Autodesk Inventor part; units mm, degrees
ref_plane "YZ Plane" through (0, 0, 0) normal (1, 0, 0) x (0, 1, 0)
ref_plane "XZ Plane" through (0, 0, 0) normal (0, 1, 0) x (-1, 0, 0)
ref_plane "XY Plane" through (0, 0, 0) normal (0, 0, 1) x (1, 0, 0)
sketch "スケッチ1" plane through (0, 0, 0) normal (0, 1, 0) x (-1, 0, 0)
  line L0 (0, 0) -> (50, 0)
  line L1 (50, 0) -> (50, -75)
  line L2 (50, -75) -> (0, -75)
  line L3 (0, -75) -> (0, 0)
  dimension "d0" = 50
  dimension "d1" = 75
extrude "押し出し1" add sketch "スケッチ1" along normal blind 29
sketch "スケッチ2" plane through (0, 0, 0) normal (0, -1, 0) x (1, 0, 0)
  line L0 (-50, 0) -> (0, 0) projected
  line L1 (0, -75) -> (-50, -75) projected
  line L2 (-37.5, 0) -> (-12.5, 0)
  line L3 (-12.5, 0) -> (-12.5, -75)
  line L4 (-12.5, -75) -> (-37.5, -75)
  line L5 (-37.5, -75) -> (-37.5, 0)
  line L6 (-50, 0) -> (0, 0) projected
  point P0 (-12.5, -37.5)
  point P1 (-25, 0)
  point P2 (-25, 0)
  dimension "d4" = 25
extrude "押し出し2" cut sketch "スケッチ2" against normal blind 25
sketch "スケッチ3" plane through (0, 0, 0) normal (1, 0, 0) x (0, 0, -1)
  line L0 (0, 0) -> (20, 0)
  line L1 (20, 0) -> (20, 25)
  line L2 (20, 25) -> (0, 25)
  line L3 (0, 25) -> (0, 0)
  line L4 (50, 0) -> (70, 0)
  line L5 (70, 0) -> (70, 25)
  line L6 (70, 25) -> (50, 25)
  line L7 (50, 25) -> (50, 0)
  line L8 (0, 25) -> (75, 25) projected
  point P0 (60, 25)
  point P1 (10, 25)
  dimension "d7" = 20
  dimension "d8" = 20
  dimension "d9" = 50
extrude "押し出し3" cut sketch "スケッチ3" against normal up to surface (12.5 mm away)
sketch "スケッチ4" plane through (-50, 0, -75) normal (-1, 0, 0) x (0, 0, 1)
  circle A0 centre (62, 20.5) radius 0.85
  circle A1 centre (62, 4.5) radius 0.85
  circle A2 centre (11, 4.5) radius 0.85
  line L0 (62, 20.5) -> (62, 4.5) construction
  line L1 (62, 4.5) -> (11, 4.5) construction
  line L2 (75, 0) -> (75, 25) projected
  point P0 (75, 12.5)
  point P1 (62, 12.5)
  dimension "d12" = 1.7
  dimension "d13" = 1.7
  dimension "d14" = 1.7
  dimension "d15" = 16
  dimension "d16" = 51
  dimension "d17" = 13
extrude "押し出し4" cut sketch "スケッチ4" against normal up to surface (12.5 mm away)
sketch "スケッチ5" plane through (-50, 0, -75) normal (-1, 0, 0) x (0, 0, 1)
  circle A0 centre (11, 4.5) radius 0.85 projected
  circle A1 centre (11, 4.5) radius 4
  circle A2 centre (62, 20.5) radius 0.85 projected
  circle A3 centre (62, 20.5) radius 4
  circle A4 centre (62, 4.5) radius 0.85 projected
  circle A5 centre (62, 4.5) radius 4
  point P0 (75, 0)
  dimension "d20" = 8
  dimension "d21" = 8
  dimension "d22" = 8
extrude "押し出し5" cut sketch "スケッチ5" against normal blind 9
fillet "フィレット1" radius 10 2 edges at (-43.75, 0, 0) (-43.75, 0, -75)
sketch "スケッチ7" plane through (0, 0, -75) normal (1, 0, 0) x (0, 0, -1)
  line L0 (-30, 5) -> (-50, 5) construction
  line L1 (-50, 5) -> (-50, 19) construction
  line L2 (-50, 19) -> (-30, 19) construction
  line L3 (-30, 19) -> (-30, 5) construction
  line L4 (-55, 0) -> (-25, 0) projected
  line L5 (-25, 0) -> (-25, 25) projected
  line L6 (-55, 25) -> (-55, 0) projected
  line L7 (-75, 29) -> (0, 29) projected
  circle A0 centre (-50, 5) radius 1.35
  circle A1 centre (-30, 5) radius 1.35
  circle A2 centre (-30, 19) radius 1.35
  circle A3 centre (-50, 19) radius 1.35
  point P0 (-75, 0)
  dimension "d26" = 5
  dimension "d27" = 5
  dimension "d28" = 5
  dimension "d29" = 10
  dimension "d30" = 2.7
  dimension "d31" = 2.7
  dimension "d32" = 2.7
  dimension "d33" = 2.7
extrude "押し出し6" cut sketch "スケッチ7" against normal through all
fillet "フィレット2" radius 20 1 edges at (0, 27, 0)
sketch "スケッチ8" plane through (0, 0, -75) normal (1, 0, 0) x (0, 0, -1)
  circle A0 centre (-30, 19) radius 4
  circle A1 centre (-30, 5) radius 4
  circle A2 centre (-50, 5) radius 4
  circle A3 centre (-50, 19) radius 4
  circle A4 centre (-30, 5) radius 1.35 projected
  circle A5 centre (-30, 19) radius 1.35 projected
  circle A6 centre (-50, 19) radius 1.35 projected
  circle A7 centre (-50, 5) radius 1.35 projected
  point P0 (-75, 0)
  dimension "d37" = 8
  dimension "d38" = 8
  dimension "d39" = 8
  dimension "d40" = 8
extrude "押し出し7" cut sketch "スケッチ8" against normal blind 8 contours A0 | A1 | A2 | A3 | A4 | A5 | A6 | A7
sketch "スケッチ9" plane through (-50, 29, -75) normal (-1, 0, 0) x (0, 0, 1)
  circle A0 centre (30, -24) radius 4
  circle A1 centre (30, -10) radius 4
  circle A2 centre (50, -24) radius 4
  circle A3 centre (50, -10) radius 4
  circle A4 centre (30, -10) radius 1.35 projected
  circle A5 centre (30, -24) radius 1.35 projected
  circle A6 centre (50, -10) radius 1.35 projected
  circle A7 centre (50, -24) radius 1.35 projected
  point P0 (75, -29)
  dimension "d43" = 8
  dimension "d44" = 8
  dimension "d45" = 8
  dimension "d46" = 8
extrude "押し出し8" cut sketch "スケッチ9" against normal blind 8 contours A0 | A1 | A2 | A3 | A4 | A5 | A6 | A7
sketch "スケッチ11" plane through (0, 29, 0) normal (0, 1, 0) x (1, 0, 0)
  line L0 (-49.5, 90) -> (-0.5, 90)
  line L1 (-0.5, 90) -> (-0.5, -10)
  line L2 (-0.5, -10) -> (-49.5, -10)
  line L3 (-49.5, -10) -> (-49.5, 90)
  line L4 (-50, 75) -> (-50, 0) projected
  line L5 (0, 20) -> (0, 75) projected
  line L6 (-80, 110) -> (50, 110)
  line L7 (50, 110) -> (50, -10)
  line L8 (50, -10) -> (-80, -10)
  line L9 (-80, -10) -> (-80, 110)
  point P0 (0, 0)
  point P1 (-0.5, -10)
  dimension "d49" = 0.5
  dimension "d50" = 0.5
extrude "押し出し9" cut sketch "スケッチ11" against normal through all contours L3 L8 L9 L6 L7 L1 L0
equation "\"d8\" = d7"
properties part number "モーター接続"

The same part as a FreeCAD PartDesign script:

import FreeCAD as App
import Part
import Sketcher

V = App.Vector
Q = App.Units.Quantity


def edges_at(feature, points):
    """Names of the edges that pass closest to the given points."""
    edges = feature.Shape.Edges
    near = lambda p: min(range(len(edges)), key=lambda i: edges[i].distToShape(Part.Vertex(*p))[0])
    return sorted({f"Edge{near(p) + 1}" for p in points})

doc = App.newDocument("Part")
body = doc.addObject("PartDesign::Body", "Body")

sketch1 = body.newObject("Sketcher::SketchObject", "Sketch")
sketch1.AttachmentSupport = (doc.getObject("XZ_Plane"), [""])
sketch1.MapMode = "FlatFace"
sketch1.addGeometry(Part.LineSegment(V(-50, 0, 0), V(0, 0, 0)), False)
sketch1.addGeometry(Part.LineSegment(V(0, 0, 0), V(0, -75, 0)), False)
sketch1.addGeometry(Part.LineSegment(V(0, -75, 0), V(-50, -75, 0)), False)
sketch1.addGeometry(Part.LineSegment(V(-50, -75, 0), V(-50, 0, 0)), False)
sketch1.addConstraint(Sketcher.Constraint("Coincident", 0, 2, 1, 1))
sketch1.addConstraint(Sketcher.Constraint("Coincident", 1, 2, 2, 1))
sketch1.addConstraint(Sketcher.Constraint("Coincident", 2, 2, 3, 1))
sketch1.addConstraint(Sketcher.Constraint("Coincident", 3, 2, 0, 1))
sketch1.addConstraint(Sketcher.Constraint("Horizontal", 0))
sketch1.addConstraint(Sketcher.Constraint("Vertical", 1))
sketch1.addConstraint(Sketcher.Constraint("Horizontal", 2))
sketch1.addConstraint(Sketcher.Constraint("Vertical", 3))
sketch1.addConstraint(Sketcher.Constraint("Coincident", 0, 2, -1, 1))
sketch1.addConstraint(Sketcher.Constraint("DistanceX", 0, 1, 0, 2, Q("50 mm")))
sketch1.addConstraint(Sketcher.Constraint("DistanceY", 1, 2, 1, 1, Q("75 mm")))
pad1 = body.newObject("PartDesign::Pad", "Pad")
pad1.Profile = sketch1
pad1.Length = 29
pad1.Reversed = True

sketch2 = body.newObject("Sketcher::SketchObject", "Sketch001")
sketch2.AttachmentSupport = (doc.getObject("XZ_Plane"), [""])
sketch2.MapMode = "FlatFace"
sketch2.addGeometry(Part.LineSegment(V(-12.5, 0, 0), V(-37.5, 0, 0)), False)
sketch2.addGeometry(Part.LineSegment(V(-37.5, 0, 0), V(-37.5, -75, 0)), False)
sketch2.addGeometry(Part.LineSegment(V(-37.5, -75, 0), V(-12.5, -75, 0)), False)
sketch2.addGeometry(Part.LineSegment(V(-12.5, -75, 0), V(-12.5, 0, 0)), False)
sketch2.addConstraint(Sketcher.Constraint("Coincident", 0, 2, 1, 1))
sketch2.addConstraint(Sketcher.Constraint("Coincident", 1, 2, 2, 1))
sketch2.addConstraint(Sketcher.Constraint("Coincident", 2, 2, 3, 1))
sketch2.addConstraint(Sketcher.Constraint("Coincident", 3, 2, 0, 1))
sketch2.addConstraint(Sketcher.Constraint("Horizontal", 0))
sketch2.addConstraint(Sketcher.Constraint("Vertical", 1))
sketch2.addConstraint(Sketcher.Constraint("Horizontal", 2))
sketch2.addConstraint(Sketcher.Constraint("Vertical", 3))
sketch2.addConstraint(Sketcher.Constraint("PointOnObject", 0, 2, -1))
sketch2.addConstraint(Sketcher.Constraint("DistanceX", 0, 2, 0, 1, Q("25 mm")))
sketch2.addConstraint(Sketcher.Constraint("DistanceY", 1, 2, 1, 1, Q("75 mm")))
sketch2.addConstraint(Sketcher.Constraint("DistanceX", 0, 2, -1, 1, Q("37.5 mm")))
pocket1 = body.newObject("PartDesign::Pocket", "Pocket")
pocket1.Profile = sketch2
pocket1.Length = 25

sketch3 = body.newObject("Sketcher::SketchObject", "Sketch002")
sketch3.AttachmentSupport = (doc.getObject("YZ_Plane"), [""])
sketch3.MapMode = "FlatFace"
sketch3.addGeometry(Part.LineSegment(V(25, 0, 0), V(0, 0, 0)), False)
sketch3.addGeometry(Part.LineSegment(V(0, 0, 0), V(0, -20, 0)), False)
sketch3.addGeometry(Part.LineSegment(V(0, -20, 0), V(25, -20, 0)), False)
sketch3.addGeometry(Part.LineSegment(V(25, -20, 0), V(25, 0, 0)), False)
sketch3.addGeometry(Part.LineSegment(V(25, -70, 0), V(25, -50, 0)), False)
sketch3.addGeometry(Part.LineSegment(V(25, -50, 0), V(0, -50, 0)), False)
sketch3.addGeometry(Part.LineSegment(V(0, -50, 0), V(0, -70, 0)), False)
sketch3.addGeometry(Part.LineSegment(V(0, -70, 0), V(25, -70, 0)), False)
sketch3.addConstraint(Sketcher.Constraint("Coincident", 0, 2, 1, 1))
sketch3.addConstraint(Sketcher.Constraint("Coincident", 1, 2, 2, 1))
sketch3.addConstraint(Sketcher.Constraint("Coincident", 2, 2, 3, 1))
sketch3.addConstraint(Sketcher.Constraint("Coincident", 3, 2, 0, 1))
sketch3.addConstraint(Sketcher.Constraint("Coincident", 4, 2, 5, 1))
sketch3.addConstraint(Sketcher.Constraint("Coincident", 5, 2, 6, 1))
sketch3.addConstraint(Sketcher.Constraint("Coincident", 6, 2, 7, 1))
sketch3.addConstraint(Sketcher.Constraint("Coincident", 7, 2, 4, 1))
sketch3.addConstraint(Sketcher.Constraint("Horizontal", 0))
sketch3.addConstraint(Sketcher.Constraint("Vertical", 1))
sketch3.addConstraint(Sketcher.Constraint("Horizontal", 2))
sketch3.addConstraint(Sketcher.Constraint("Vertical", 3))
sketch3.addConstraint(Sketcher.Constraint("Vertical", 4))
sketch3.addConstraint(Sketcher.Constraint("Horizontal", 5))
sketch3.addConstraint(Sketcher.Constraint("Vertical", 6))
sketch3.addConstraint(Sketcher.Constraint("Horizontal", 7))
sketch3.addConstraint(Sketcher.Constraint("Coincident", 0, 2, -1, 1))
sketch3.addConstraint(Sketcher.Constraint("PointOnObject", 5, 2, -2))
sketch3.addConstraint(Sketcher.Constraint("Vertical", 3, 2, 4, 2))
sketch3.addConstraint(Sketcher.Constraint("Equal", 3, 4))
sketch3.addConstraint(Sketcher.Constraint("DistanceY", 1, 2, 1, 1, Q("20 mm")))
sketch3.addConstraint(Sketcher.Constraint("DistanceY", 4, 2, -1, 1, Q("50 mm")))
sketch3.addConstraint(Sketcher.Constraint("DistanceX", 0, 2, 0, 1, Q("25 mm")))
pocket2 = body.newObject("PartDesign::Pocket", "Pocket001")
pocket2.Profile = sketch3
pocket2.Length = 12.5

sketch4 = body.newObject("Sketcher::SketchObject", "Sketch003")
sketch4.AttachmentSupport = (doc.getObject("YZ_Plane"), [""])
sketch4.MapMode = "FlatFace"
sketch4.AttachmentOffset = App.Placement(V(0, 0, -50), App.Rotation())
sketch4.addGeometry(Part.Circle(V(20.5, -13, 0), V(0, 0, 1), 0.85), False)
sketch4.addGeometry(Part.Circle(V(4.5, -13, 0), V(0, 0, 1), 0.85), False)
sketch4.addGeometry(Part.Circle(V(4.5, -64, 0), V(0, 0, 1), 0.85), False)
sketch4.addConstraint(Sketcher.Constraint("Equal", 0, 1))
sketch4.addConstraint(Sketcher.Constraint("Equal", 1, 2))
sketch4.addConstraint(Sketcher.Constraint("Horizontal", 0, 3, 1, 3))
sketch4.addConstraint(Sketcher.Constraint("Vertical", 1, 3, 2, 3))
sketch4.addConstraint(Sketcher.Constraint("Diameter", 0, Q("1.7 mm")))
sketch4.addConstraint(Sketcher.Constraint("DistanceY", 0, 3, -1, 1, Q("13 mm")))
sketch4.addConstraint(Sketcher.Constraint("DistanceX", 1, 3, 0, 3, Q("16 mm")))
sketch4.addConstraint(Sketcher.Constraint("DistanceY", 2, 3, 1, 3, Q("51 mm")))
sketch4.addConstraint(Sketcher.Constraint("DistanceX", -1, 1, 0, 3, Q("20.5 mm")))
pocket3 = body.newObject("PartDesign::Pocket", "Pocket002")
pocket3.Profile = sketch4
pocket3.Length = 12.5
pocket3.Reversed = True

sketch5 = body.newObject("Sketcher::SketchObject", "Sketch004")
sketch5.AttachmentSupport = (doc.getObject("YZ_Plane"), [""])
sketch5.MapMode = "FlatFace"
sketch5.AttachmentOffset = App.Placement(V(0, 0, -50), App.Rotation())
sketch5.addGeometry(Part.Circle(V(4.5, -64, 0), V(0, 0, 1), 4), False)
sketch5.addGeometry(Part.Circle(V(4.5, -64, 0), V(0, 0, 1), 0.85), False)
sketch5.addGeometry(Part.Circle(V(20.5, -13, 0), V(0, 0, 1), 4), False)
sketch5.addGeometry(Part.Circle(V(20.5, -13, 0), V(0, 0, 1), 0.85), False)
sketch5.addGeometry(Part.Circle(V(4.5, -13, 0), V(0, 0, 1), 4), False)
sketch5.addGeometry(Part.Circle(V(4.5, -13, 0), V(0, 0, 1), 0.85), False)
sketch5.addConstraint(Sketcher.Constraint("Coincident", 1, 3, 0, 3))
sketch5.addConstraint(Sketcher.Constraint("Coincident", 3, 3, 2, 3))
sketch5.addConstraint(Sketcher.Constraint("Coincident", 5, 3, 4, 3))
sketch5.addConstraint(Sketcher.Constraint("Equal", 0, 2))
sketch5.addConstraint(Sketcher.Constraint("Equal", 1, 3))
sketch5.addConstraint(Sketcher.Constraint("Equal", 2, 4))
sketch5.addConstraint(Sketcher.Constraint("Equal", 3, 5))
sketch5.addConstraint(Sketcher.Constraint("Horizontal", 3, 3, 4, 3))
sketch5.addConstraint(Sketcher.Constraint("Vertical", 1, 3, 4, 3))
sketch5.addConstraint(Sketcher.Constraint("Diameter", 0, Q("8 mm")))
sketch5.addConstraint(Sketcher.Constraint("Diameter", 1, Q("1.7 mm")))
sketch5.addConstraint(Sketcher.Constraint("DistanceY", 0, 3, -1, 1, Q("64 mm")))
sketch5.addConstraint(Sketcher.Constraint("DistanceY", 2, 3, -1, 1, Q("13 mm")))
sketch5.addConstraint(Sketcher.Constraint("DistanceX", 0, 3, 2, 3, Q("16 mm")))
sketch5.addConstraint(Sketcher.Constraint("DistanceX", -1, 1, 0, 3, Q("4.5 mm")))
pocket4 = body.newObject("PartDesign::Pocket", "Pocket003")
pocket4.Profile = sketch5
pocket4.Length = 9
pocket4.Reversed = True
doc.recompute()

fillet = body.newObject("PartDesign::Fillet", "Fillet")
fillet.Base = (pocket4, edges_at(pocket4, [(-43.75, 0, 0), (-43.75, 0, -75)]))
fillet.Radius = 10

sketch6 = body.newObject("Sketcher::SketchObject", "Sketch005")
sketch6.AttachmentSupport = (doc.getObject("YZ_Plane"), [""])
sketch6.MapMode = "FlatFace"
sketch6.addGeometry(Part.Circle(V(5, -25, 0), V(0, 0, 1), 1.35), False)
sketch6.addGeometry(Part.Circle(V(5, -45, 0), V(0, 0, 1), 1.35), False)
sketch6.addGeometry(Part.Circle(V(19, -45, 0), V(0, 0, 1), 1.35), False)
sketch6.addGeometry(Part.Circle(V(19, -25, 0), V(0, 0, 1), 1.35), False)
sketch6.addConstraint(Sketcher.Constraint("Equal", 0, 1))
sketch6.addConstraint(Sketcher.Constraint("Equal", 1, 2))
sketch6.addConstraint(Sketcher.Constraint("Equal", 2, 3))
sketch6.addConstraint(Sketcher.Constraint("Horizontal", 1, 3, 2, 3))
sketch6.addConstraint(Sketcher.Constraint("Horizontal", 0, 3, 3, 3))
sketch6.addConstraint(Sketcher.Constraint("Vertical", 0, 3, 1, 3))
sketch6.addConstraint(Sketcher.Constraint("Vertical", 2, 3, 3, 3))
sketch6.addConstraint(Sketcher.Constraint("Diameter", 0, Q("2.7 mm")))
sketch6.addConstraint(Sketcher.Constraint("DistanceX", -1, 1, 0, 3, Q("5 mm")))
sketch6.addConstraint(Sketcher.Constraint("DistanceY", 0, 3, -1, 1, Q("25 mm")))
sketch6.addConstraint(Sketcher.Constraint("DistanceY", 1, 3, -1, 1, Q("45 mm")))
sketch6.addConstraint(Sketcher.Constraint("DistanceX", -1, 1, 2, 3, Q("19 mm")))
pocket5 = body.newObject("PartDesign::Pocket", "Pocket004")
pocket5.Profile = sketch6
pocket5.Type = "ThroughAll"
doc.recompute()

fillet2 = body.newObject("PartDesign::Fillet", "Fillet001")
fillet2.Base = (pocket5, edges_at(pocket5, [(0, 27, 0)]))
fillet2.Radius = 20

sketch7 = body.newObject("Sketcher::SketchObject", "Sketch006")
sketch7.AttachmentSupport = (doc.getObject("YZ_Plane"), [""])
sketch7.MapMode = "FlatFace"
sketch7.addGeometry(Part.Circle(V(19, -45, 0), V(0, 0, 1), 4), False)
sketch7.addGeometry(Part.Circle(V(5, -45, 0), V(0, 0, 1), 4), False)
sketch7.addGeometry(Part.Circle(V(5, -25, 0), V(0, 0, 1), 4), False)
sketch7.addGeometry(Part.Circle(V(19, -25, 0), V(0, 0, 1), 4), False)
sketch7.addConstraint(Sketcher.Constraint("Equal", 0, 1))
sketch7.addConstraint(Sketcher.Constraint("Equal", 1, 2))
sketch7.addConstraint(Sketcher.Constraint("Equal", 2, 3))
sketch7.addConstraint(Sketcher.Constraint("Horizontal", 0, 3, 1, 3))
sketch7.addConstraint(Sketcher.Constraint("Horizontal", 2, 3, 3, 3))
sketch7.addConstraint(Sketcher.Constraint("Vertical", 1, 3, 2, 3))
sketch7.addConstraint(Sketcher.Constraint("Vertical", 0, 3, 3, 3))
sketch7.addConstraint(Sketcher.Constraint("Diameter", 0, Q("8 mm")))
sketch7.addConstraint(Sketcher.Constraint("DistanceX", -1, 1, 0, 3, Q("19 mm")))
sketch7.addConstraint(Sketcher.Constraint("DistanceY", 0, 3, -1, 1, Q("45 mm")))
sketch7.addConstraint(Sketcher.Constraint("DistanceX", -1, 1, 1, 3, Q("5 mm")))
sketch7.addConstraint(Sketcher.Constraint("DistanceY", 2, 3, -1, 1, Q("25 mm")))
pocket6 = body.newObject("PartDesign::Pocket", "Pocket005")
pocket6.Profile = sketch7
pocket6.Length = 8

sketch8 = body.newObject("Sketcher::SketchObject", "Sketch007")
sketch8.AttachmentSupport = (doc.getObject("YZ_Plane"), [""])
sketch8.MapMode = "FlatFace"
sketch8.AttachmentOffset = App.Placement(V(0, 0, -50), App.Rotation())
sketch8.addGeometry(Part.Circle(V(5, -45, 0), V(0, 0, 1), 4), False)
sketch8.addGeometry(Part.Circle(V(19, -45, 0), V(0, 0, 1), 4), False)
sketch8.addGeometry(Part.Circle(V(5, -25, 0), V(0, 0, 1), 4), False)
sketch8.addGeometry(Part.Circle(V(19, -25, 0), V(0, 0, 1), 4), False)
sketch8.addConstraint(Sketcher.Constraint("Equal", 0, 1))
sketch8.addConstraint(Sketcher.Constraint("Equal", 1, 2))
sketch8.addConstraint(Sketcher.Constraint("Equal", 2, 3))
sketch8.addConstraint(Sketcher.Constraint("Horizontal", 0, 3, 1, 3))
sketch8.addConstraint(Sketcher.Constraint("Horizontal", 2, 3, 3, 3))
sketch8.addConstraint(Sketcher.Constraint("Vertical", 0, 3, 2, 3))
sketch8.addConstraint(Sketcher.Constraint("Vertical", 1, 3, 3, 3))
sketch8.addConstraint(Sketcher.Constraint("Diameter", 0, Q("8 mm")))
sketch8.addConstraint(Sketcher.Constraint("DistanceX", -1, 1, 0, 3, Q("5 mm")))
sketch8.addConstraint(Sketcher.Constraint("DistanceY", 0, 3, -1, 1, Q("45 mm")))
sketch8.addConstraint(Sketcher.Constraint("DistanceX", -1, 1, 1, 3, Q("19 mm")))
sketch8.addConstraint(Sketcher.Constraint("DistanceY", 2, 3, -1, 1, Q("25 mm")))
pocket7 = body.newObject("PartDesign::Pocket", "Pocket006")
pocket7.Profile = sketch8
pocket7.Length = 8
pocket7.Reversed = True

sketch9 = body.newObject("Sketcher::SketchObject", "Sketch008")
sketch9.AttachmentSupport = (doc.getObject("XZ_Plane"), [""])
sketch9.MapMode = "FlatFace"
sketch9.AttachmentOffset = App.Placement(V(0, 0, -29), App.Rotation())
sketch9.addGeometry(Part.LineSegment(V(-49.5, 10, 0), V(-49.5, -90, 0)), False)
sketch9.addGeometry(Part.LineSegment(V(-49.5, -90, 0), V(-0.5, -90, 0)), False)
sketch9.addGeometry(Part.LineSegment(V(-0.5, -90, 0), V(-0.5, 10, 0)), False)
sketch9.addGeometry(Part.LineSegment(V(-0.5, 10, 0), V(50, 10, 0)), False)
sketch9.addGeometry(Part.LineSegment(V(50, 10, 0), V(50, -110, 0)), False)
sketch9.addGeometry(Part.LineSegment(V(50, -110, 0), V(-80, -110, 0)), False)
sketch9.addGeometry(Part.LineSegment(V(-80, -110, 0), V(-80, 10, 0)), False)
sketch9.addGeometry(Part.LineSegment(V(-80, 10, 0), V(-49.5, 10, 0)), False)
sketch9.addConstraint(Sketcher.Constraint("Coincident", 0, 2, 1, 1))
sketch9.addConstraint(Sketcher.Constraint("Coincident", 1, 2, 2, 1))
sketch9.addConstraint(Sketcher.Constraint("Coincident", 2, 2, 3, 1))
sketch9.addConstraint(Sketcher.Constraint("Coincident", 3, 2, 4, 1))
sketch9.addConstraint(Sketcher.Constraint("Coincident", 4, 2, 5, 1))
sketch9.addConstraint(Sketcher.Constraint("Coincident", 5, 2, 6, 1))
sketch9.addConstraint(Sketcher.Constraint("Coincident", 6, 2, 7, 1))
sketch9.addConstraint(Sketcher.Constraint("Coincident", 7, 2, 0, 1))
sketch9.addConstraint(Sketcher.Constraint("Vertical", 0))
sketch9.addConstraint(Sketcher.Constraint("Horizontal", 1))
sketch9.addConstraint(Sketcher.Constraint("Vertical", 2))
sketch9.addConstraint(Sketcher.Constraint("Horizontal", 3))
sketch9.addConstraint(Sketcher.Constraint("Vertical", 4))
sketch9.addConstraint(Sketcher.Constraint("Horizontal", 5))
sketch9.addConstraint(Sketcher.Constraint("Vertical", 6))
sketch9.addConstraint(Sketcher.Constraint("Horizontal", 7))
sketch9.addConstraint(Sketcher.Constraint("Horizontal", 3, 2, 6, 2))
sketch9.addConstraint(Sketcher.Constraint("DistanceX", 1, 2, -1, 1, Q("0.5 mm")))
sketch9.addConstraint(Sketcher.Constraint("DistanceX", 1, 1, 1, 2, Q("49 mm")))
sketch9.addConstraint(Sketcher.Constraint("DistanceX", 5, 2, 5, 1, Q("130 mm")))
sketch9.addConstraint(Sketcher.Constraint("DistanceY", 0, 2, 0, 1, Q("100 mm")))
sketch9.addConstraint(Sketcher.Constraint("DistanceY", 4, 2, 4, 1, Q("120 mm")))
sketch9.addConstraint(Sketcher.Constraint("DistanceX", 3, 1, 3, 2, Q("50.5 mm")))
sketch9.addConstraint(Sketcher.Constraint("DistanceY", 0, 2, -1, 1, Q("90 mm")))
pocket8 = body.newObject("PartDesign::Pocket", "Pocket007")
pocket8.Profile = sketch9
pocket8.Type = "ThroughAll"
pocket8.Reversed = True

doc.recompute()
